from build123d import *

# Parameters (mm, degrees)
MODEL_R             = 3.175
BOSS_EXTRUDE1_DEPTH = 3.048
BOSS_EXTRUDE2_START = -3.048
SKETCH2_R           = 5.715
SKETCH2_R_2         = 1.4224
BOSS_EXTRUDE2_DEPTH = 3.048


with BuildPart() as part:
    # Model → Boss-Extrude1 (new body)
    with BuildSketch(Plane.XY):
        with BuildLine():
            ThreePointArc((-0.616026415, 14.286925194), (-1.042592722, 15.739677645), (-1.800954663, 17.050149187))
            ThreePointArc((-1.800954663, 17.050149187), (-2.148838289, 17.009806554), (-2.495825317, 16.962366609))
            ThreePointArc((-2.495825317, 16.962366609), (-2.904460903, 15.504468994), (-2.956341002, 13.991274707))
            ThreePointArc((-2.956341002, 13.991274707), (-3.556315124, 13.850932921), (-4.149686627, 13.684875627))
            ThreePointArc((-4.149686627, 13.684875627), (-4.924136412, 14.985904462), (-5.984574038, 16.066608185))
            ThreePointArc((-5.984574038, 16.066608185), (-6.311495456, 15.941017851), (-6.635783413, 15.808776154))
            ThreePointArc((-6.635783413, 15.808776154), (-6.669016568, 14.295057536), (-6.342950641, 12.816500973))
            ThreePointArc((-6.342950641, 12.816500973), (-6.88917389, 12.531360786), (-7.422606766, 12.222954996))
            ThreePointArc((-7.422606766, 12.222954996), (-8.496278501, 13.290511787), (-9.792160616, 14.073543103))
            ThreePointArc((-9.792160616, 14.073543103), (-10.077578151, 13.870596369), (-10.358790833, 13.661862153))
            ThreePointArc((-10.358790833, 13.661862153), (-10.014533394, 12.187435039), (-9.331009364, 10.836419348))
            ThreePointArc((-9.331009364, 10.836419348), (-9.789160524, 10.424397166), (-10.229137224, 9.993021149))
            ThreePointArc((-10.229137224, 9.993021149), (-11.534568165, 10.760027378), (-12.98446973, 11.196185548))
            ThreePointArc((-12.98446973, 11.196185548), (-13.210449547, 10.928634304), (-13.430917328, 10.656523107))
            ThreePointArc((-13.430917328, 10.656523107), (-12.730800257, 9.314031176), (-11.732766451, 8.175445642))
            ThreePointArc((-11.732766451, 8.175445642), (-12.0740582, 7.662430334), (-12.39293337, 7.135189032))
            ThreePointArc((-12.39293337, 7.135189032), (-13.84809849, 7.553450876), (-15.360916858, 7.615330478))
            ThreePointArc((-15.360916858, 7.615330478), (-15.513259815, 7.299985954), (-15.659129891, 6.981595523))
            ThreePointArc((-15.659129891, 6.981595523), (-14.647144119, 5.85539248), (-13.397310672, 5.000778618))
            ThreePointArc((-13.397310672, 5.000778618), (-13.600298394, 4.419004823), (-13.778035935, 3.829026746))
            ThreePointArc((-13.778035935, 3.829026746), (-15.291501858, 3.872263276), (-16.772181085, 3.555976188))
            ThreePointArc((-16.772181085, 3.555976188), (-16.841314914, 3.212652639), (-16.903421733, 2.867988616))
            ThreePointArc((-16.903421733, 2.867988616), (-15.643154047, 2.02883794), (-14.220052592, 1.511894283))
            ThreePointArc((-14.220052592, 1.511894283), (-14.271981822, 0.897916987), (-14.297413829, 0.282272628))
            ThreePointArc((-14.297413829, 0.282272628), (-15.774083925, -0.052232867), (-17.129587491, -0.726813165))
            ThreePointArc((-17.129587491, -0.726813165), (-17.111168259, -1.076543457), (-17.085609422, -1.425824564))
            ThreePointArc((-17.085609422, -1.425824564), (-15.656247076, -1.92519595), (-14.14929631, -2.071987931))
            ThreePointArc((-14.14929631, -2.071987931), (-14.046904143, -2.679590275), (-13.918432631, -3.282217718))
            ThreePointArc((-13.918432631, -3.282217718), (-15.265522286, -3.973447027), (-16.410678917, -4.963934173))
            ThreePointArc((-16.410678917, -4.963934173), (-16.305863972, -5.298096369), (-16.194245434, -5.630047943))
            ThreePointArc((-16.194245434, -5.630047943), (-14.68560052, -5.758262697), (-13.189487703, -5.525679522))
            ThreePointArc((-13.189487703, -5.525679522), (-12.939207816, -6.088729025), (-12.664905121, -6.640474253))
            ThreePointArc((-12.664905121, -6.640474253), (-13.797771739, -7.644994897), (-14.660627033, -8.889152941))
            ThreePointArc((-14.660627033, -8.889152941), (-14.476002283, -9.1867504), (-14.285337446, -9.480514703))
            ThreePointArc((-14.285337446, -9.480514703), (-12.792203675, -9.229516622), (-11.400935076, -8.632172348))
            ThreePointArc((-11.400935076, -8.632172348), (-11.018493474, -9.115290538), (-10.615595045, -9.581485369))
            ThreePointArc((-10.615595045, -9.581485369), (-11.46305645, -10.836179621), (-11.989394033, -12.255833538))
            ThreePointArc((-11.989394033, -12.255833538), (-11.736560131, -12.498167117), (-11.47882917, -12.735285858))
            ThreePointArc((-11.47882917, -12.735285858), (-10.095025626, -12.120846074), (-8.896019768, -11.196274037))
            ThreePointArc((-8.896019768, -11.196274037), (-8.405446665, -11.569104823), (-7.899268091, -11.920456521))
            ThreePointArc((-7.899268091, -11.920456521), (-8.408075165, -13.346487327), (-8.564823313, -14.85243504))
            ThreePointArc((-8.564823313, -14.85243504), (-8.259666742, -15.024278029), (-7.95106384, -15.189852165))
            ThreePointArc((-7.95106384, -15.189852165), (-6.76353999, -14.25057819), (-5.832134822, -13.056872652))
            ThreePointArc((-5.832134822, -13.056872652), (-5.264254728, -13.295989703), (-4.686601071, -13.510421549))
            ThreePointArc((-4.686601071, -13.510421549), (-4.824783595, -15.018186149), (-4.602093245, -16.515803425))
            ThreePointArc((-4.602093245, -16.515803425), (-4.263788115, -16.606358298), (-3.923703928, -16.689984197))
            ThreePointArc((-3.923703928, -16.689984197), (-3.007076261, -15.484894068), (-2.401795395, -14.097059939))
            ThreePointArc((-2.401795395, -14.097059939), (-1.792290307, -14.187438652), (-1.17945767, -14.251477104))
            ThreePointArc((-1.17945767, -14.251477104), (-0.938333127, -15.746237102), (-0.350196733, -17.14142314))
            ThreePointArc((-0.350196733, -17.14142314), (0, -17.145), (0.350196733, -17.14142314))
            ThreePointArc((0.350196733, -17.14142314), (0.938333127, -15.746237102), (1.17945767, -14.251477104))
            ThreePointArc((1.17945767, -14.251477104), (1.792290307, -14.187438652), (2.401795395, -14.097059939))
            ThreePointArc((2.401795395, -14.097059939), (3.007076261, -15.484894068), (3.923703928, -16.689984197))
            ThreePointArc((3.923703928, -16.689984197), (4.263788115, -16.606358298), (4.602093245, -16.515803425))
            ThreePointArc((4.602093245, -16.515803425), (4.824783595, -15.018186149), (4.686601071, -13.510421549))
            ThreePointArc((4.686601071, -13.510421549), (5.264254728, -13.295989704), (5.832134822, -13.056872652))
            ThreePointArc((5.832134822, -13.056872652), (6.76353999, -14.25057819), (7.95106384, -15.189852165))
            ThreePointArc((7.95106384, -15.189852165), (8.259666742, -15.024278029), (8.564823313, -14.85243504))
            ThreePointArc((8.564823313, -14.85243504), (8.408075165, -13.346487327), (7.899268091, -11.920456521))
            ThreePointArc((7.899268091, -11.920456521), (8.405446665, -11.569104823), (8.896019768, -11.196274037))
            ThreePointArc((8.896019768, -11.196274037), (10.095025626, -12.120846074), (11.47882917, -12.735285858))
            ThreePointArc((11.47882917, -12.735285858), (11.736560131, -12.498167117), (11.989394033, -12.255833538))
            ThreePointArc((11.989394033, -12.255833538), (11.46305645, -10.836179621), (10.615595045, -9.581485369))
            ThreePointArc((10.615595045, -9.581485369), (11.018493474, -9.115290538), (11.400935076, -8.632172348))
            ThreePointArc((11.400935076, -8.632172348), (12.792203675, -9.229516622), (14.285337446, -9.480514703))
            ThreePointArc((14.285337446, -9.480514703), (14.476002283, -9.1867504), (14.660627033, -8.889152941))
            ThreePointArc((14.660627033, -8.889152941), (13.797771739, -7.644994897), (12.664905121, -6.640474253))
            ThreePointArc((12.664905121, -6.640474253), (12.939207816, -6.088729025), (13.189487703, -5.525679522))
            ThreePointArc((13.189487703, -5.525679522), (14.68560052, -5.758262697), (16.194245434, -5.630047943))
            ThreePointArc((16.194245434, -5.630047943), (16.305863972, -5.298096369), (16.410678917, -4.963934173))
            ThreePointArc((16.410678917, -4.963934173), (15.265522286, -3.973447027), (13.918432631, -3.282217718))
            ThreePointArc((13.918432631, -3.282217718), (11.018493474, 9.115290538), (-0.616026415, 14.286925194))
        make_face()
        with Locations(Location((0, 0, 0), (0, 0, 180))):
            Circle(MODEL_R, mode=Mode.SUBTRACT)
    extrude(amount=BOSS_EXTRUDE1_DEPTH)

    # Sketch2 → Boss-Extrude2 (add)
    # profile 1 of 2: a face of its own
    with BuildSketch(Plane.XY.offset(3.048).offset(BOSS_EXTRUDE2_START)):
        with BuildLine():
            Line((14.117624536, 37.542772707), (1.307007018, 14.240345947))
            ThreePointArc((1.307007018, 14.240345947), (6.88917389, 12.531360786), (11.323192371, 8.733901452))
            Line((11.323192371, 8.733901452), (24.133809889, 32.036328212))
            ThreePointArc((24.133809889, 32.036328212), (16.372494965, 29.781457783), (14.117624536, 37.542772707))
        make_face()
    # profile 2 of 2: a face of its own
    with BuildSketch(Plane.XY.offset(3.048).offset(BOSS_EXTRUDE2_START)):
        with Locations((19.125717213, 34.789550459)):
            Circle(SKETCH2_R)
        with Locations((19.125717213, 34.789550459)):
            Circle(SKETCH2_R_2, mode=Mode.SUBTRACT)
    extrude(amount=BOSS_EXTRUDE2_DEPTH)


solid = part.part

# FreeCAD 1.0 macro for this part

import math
import FreeCAD as App
import Part
import Sketcher
from FreeCAD import Vector
Q = App.Units.Quantity

doc = App.newDocument("Part")
body = doc.addObject("PartDesign::Body", "Body")

# Sketch on XY plane
sketch1 = body.newObject("Sketcher::SketchObject", "Sketch")
sketch1.AttachmentSupport = (doc.getObject("XY_Plane"), [""])
sketch1.MapMode = "FlatFace"
sketch1.addGeometry([
    Part.ArcOfCircle(Part.Circle(Vector(-6.878636, 13.23706, 0), Vector(0, 0, 1), 6.35), math.radians(9.516585), math.radians(36.904747)),  # 0
    Part.ArcOfCircle(Part.Circle(Vector(0, 0, 0), Vector(0, 0, 1), 17.145), math.radians(96.029619), math.radians(98.370382)),  # 1
    Part.ArcOfCircle(Part.Circle(Vector(3.370608, 14.531841, 0), Vector(0, 0, 1), 6.35), math.radians(157.495253), math.radians(184.883415)),  # 2
    Part.ArcOfCircle(Part.Circle(Vector(0, 0, 0), Vector(0, 0, 1), 14.3002), math.radians(101.931039), math.radians(106.868961)),  # 3
    Part.ArcOfCircle(Part.Circle(Vector(-9.954454, 11.110546, 0), Vector(0, 0, 1), 6.35), math.radians(23.916585), math.radians(51.304747)),  # 4
    Part.ArcOfCircle(Part.Circle(Vector(-0.000001, 0.000004, 0), Vector(0, 0, 1), 17.144996), math.radians(110.429618), math.radians(112.770382)),  # 5
    Part.ArcOfCircle(Part.Circle(Vector(-0.349207, 14.913532, 0), Vector(0, 0, 1), 6.35), math.radians(171.895253), math.radians(199.283415)),  # 6
    Part.ArcOfCircle(Part.Circle(Vector(0, 0, 0), Vector(0, 0, 1), 14.3002), math.radians(116.331039), math.radians(121.268961)),  # 7
    Part.ArcOfCircle(Part.Circle(Vector(-12.404797, 8.285916, 0), Vector(0, 0, 1), 6.35), math.radians(38.316585), math.radians(65.704747)),  # 8
    Part.ArcOfCircle(Part.Circle(Vector(-0.000001, 0.000002, 0), Vector(0, 0, 1), 17.144998), math.radians(124.829618), math.radians(127.170382)),  # 9
    Part.ArcOfCircle(Part.Circle(Vector(-4.047081, 14.358152, 0), Vector(0, 0, 1), 6.35), math.radians(-173.704747), math.radians(-146.316585)),  # 10
    Part.ArcOfCircle(Part.Circle(Vector(0, 0, 0), Vector(0, 0, 1), 14.3002), math.radians(130.731039), math.radians(135.668961)),  # 11
    Part.ArcOfCircle(Part.Circle(Vector(-14.075701, 4.940651, 0), Vector(0, 0, 1), 6.35), math.radians(52.716585), math.radians(80.104747)),  # 12
    Part.ArcOfCircle(Part.Circle(Vector(0.000001, -0.000001, 0), Vector(0, 0, 1), 17.145002), math.radians(139.229619), math.radians(141.570381)),  # 13
    Part.ArcOfCircle(Part.Circle(Vector(-7.490662, 12.900596, 0), Vector(0, 0, 1), 6.35), math.radians(-159.304747), math.radians(-131.916585)),  # 14
    Part.ArcOfCircle(Part.Circle(Vector(0, 0, 0), Vector(0, 0, 1), 14.3002), math.radians(145.131039), math.radians(150.068961)),  # 15
    Part.ArcOfCircle(Part.Circle(Vector(-14.862177, 1.284947, 0), Vector(0, 0, 1), 6.35), math.radians(67.116585), math.radians(94.504747)),  # 16
    Part.ArcOfCircle(Part.Circle(Vector(-0.000002, 0.000001, 0), Vector(0, 0, 1), 17.144998), math.radians(153.629618), math.radians(155.970382)),  # 17
    Part.ArcOfCircle(Part.Circle(Vector(-10.463577, 10.632448, 0), Vector(0, 0, 1), 6.35), math.radians(-144.904747), math.radians(-117.516585)),  # 18
    Part.ArcOfCircle(Part.Circle(Vector(0, 0, 0), Vector(0, 0, 1), 14.3002), math.radians(159.531039), math.radians(164.468961)),  # 19
    Part.ArcOfCircle(Part.Circle(Vector(-14.714808, -2.451495, 0), Vector(0, 0, 1), 6.35), math.radians(81.516585), math.radians(108.904747)),  # 20
    Part.ArcOfCircle(Part.Circle(Vector(-0.000003, 0.000001, 0), Vector(0, 0, 1), 17.144997), math.radians(168.029618), math.radians(170.370382)),  # 21
    Part.ArcOfCircle(Part.Circle(Vector(-12.779027, 7.696225, 0), Vector(0, 0, 1), 6.35), math.radians(-130.504747), math.radians(-103.116585)),  # 22
    Part.ArcOfCircle(Part.Circle(Vector(0, 0, 0), Vector(0, 0, 1), 14.3002), math.radians(173.931039), math.radians(178.868961)),  # 23
    Part.ArcOfCircle(Part.Circle(Vector(-13.642853, -6.033901, 0), Vector(0, 0, 1), 6.35), math.radians(95.916585), math.radians(123.304747)),  # 24
    Part.ArcOfCircle(Part.Circle(Vector(-0.000001, 0, 0), Vector(0, 0, 1), 17.144999), math.radians(-177.570382), math.radians(-175.229619)),  # 25
    Part.ArcOfCircle(Part.Circle(Vector(-14.291523, 4.276419, 0), Vector(0, 0, 1), 6.35), math.radians(-116.104747), math.radians(-88.716585)),  # 26
    Part.ArcOfCircle(Part.Circle(Vector(0, 0, 0), Vector(0, 0, 1), 14.3002), math.radians(-171.668961), math.radians(-166.731039)),  # 27
    Part.ArcOfCircle(Part.Circle(Vector(-11.713667, -9.237175, 0), Vector(0, 0, 1), 6.35), math.radians(110.316585), math.radians(137.704747)),  # 28
    Part.ArcOfCircle(Part.Circle(Vector(-0.000001, 0, 0), Vector(0, 0, 1), 17.144999), math.radians(-163.170382), math.radians(-160.829619)),  # 29
    Part.ArcOfCircle(Part.Circle(Vector(-14.906031, 0.58791, 0), Vector(0, 0, 1), 6.35), math.radians(-101.704747), math.radians(-74.316585)),  # 30
    Part.ArcOfCircle(Part.Circle(Vector(0, 0, 0), Vector(0, 0, 1), 14.3002), math.radians(-157.268961), math.radians(-152.331039)),  # 31
    Part.ArcOfCircle(Part.Circle(Vector(-9.048469, -11.860042, 0), Vector(0, 0, 1), 6.35), math.radians(124.716585), math.radians(152.104747)),  # 32
    Part.ArcOfCircle(Part.Circle(Vector(-0.000002, -0.000001, 0), Vector(0, 0, 1), 17.144998), math.radians(-148.770382), math.radians(-146.429618)),  # 33
    Part.ArcOfCircle(Part.Circle(Vector(-14.583938, -3.137539, 0), Vector(0, 0, 1), 6.35), math.radians(-87.304747), math.radians(-59.916585)),  # 34
    Part.ArcOfCircle(Part.Circle(Vector(0, 0, 0), Vector(0, 0, 1), 14.300201), math.radians(-142.868961), math.radians(-137.931039)),  # 35
    Part.ArcOfCircle(Part.Circle(Vector(-5.814722, -13.7377, 0), Vector(0, 0, 1), 6.35), math.radians(139.116585), math.radians(166.504747)),  # 36
    Part.ArcOfCircle(Part.Circle(Vector(0, 0, 0), Vector(0, 0, 1), 17.145), math.radians(-134.370381), math.radians(-132.029619)),  # 37
    Part.ArcOfCircle(Part.Circle(Vector(-13.345482, -6.665846, 0), Vector(0, 0, 1), 6.35), math.radians(-72.904747), math.radians(-45.516585)),  # 38
    Part.ArcOfCircle(Part.Circle(Vector(0, 0, 0), Vector(0, 0, 1), 14.3002), math.radians(-128.468961), math.radians(-123.531039)),  # 39
    Part.ArcOfCircle(Part.Circle(Vector(-2.215615, -14.752168, 0), Vector(0, 0, 1), 6.35), math.radians(153.516585), math.radians(180.904747)),  # 40
    Part.ArcOfCircle(Part.Circle(Vector(0.000001, 0.000001, 0), Vector(0, 0, 1), 17.145001), math.radians(-119.970381), math.radians(-117.629619)),  # 41
    Part.ArcOfCircle(Part.Circle(Vector(-11.268481, -9.775312, 0), Vector(0, 0, 1), 6.35), math.radians(-58.504747), math.radians(-31.116585)),  # 42
    Part.ArcOfCircle(Part.Circle(Vector(0, 0, 0), Vector(0, 0, 1), 14.3002), math.radians(-114.068961), math.radians(-109.131039)),  # 43
    Part.ArcOfCircle(Part.Circle(Vector(1.522708, -14.839702, 0), Vector(0, 0, 1), 6.35), math.radians(167.916585), math.radians(195.304747)),  # 44
    Part.ArcOfCircle(Part.Circle(Vector(0, 0, 0), Vector(0, 0, 1), 17.145), math.radians(-105.570381), math.radians(-103.229619)),  # 45
    Part.ArcOfCircle(Part.Circle(Vector(-8.48344, -12.27056, 0), Vector(0, 0, 1), 6.35), math.radians(-44.104747), math.radians(-16.716585)),  # 46
    Part.ArcOfCircle(Part.Circle(Vector(0, 0, 0), Vector(0, 0, 1), 14.3002), math.radians(-99.668961), math.radians(-94.731039)),  # 47
    Part.ArcOfCircle(Part.Circle(Vector(5.165353, -13.994804, 0), Vector(0, 0, 1), 6.35), math.radians(-177.683415), math.radians(-150.295253)),  # 48
    Part.ArcOfCircle(Part.Circle(Vector(0, 0.000002, 0), Vector(0, 0, 1), 17.145002), math.radians(-91.170381), math.radians(-88.829619)),  # 49
    Part.ArcOfCircle(Part.Circle(Vector(-5.165353, -13.994804, 0), Vector(0, 0, 1), 6.35), math.radians(-29.704747), math.radians(-2.316585)),  # 50
    Part.ArcOfCircle(Part.Circle(Vector(0, 0, 0), Vector(0, 0, 1), 14.3002), math.radians(-85.268961), math.radians(-80.331039)),  # 51
    Part.ArcOfCircle(Part.Circle(Vector(8.48344, -12.27056, 0), Vector(0, 0, 1), 6.35), math.radians(-163.283415), math.radians(-135.895253)),  # 52
    Part.ArcOfCircle(Part.Circle(Vector(0, 0, 0), Vector(0, 0, 1), 17.145), math.radians(-76.770381), math.radians(-74.429619)),  # 53
    Part.ArcOfCircle(Part.Circle(Vector(-1.522708, -14.839702, 0), Vector(0, 0, 1), 6.35), math.radians(-15.304747), math.radians(12.083415)),  # 54
    Part.ArcOfCircle(Part.Circle(Vector(0, -0.000001, 0), Vector(0, 0, 1), 14.300199), math.radians(-70.868961), math.radians(-65.931039)),  # 55
    Part.ArcOfCircle(Part.Circle(Vector(11.268481, -9.775312, 0), Vector(0, 0, 1), 6.35), math.radians(-148.883415), math.radians(-121.495253)),  # 56
    Part.ArcOfCircle(Part.Circle(Vector(-0.000001, 0.000001, 0), Vector(0, 0, 1), 17.145001), math.radians(-62.370381), math.radians(-60.029619)),  # 57
    Part.ArcOfCircle(Part.Circle(Vector(2.215615, -14.752168, 0), Vector(0, 0, 1), 6.35), math.radians(-0.904747), math.radians(26.483415)),  # 58
    Part.ArcOfCircle(Part.Circle(Vector(0, 0, 0), Vector(0, 0, 1), 14.3002), math.radians(-56.468961), math.radians(-51.531039)),  # 59
    Part.ArcOfCircle(Part.Circle(Vector(13.345482, -6.665846, 0), Vector(0, 0, 1), 6.35), math.radians(-134.483415), math.radians(-107.095253)),  # 60
    Part.ArcOfCircle(Part.Circle(Vector(0, 0, 0), Vector(0, 0, 1), 17.145), math.radians(-47.970381), math.radians(-45.629619)),  # 61
    Part.ArcOfCircle(Part.Circle(Vector(5.814722, -13.7377, 0), Vector(0, 0, 1), 6.35), math.radians(13.495253), math.radians(40.883415)),  # 62
    Part.ArcOfCircle(Part.Circle(Vector(0, 0, 0), Vector(0, 0, 1), 14.300201), math.radians(-42.068961), math.radians(-37.131039)),  # 63
    Part.ArcOfCircle(Part.Circle(Vector(14.583938, -3.137539, 0), Vector(0, 0, 1), 6.35), math.radians(-120.083415), math.radians(-92.695253)),  # 64
    Part.ArcOfCircle(Part.Circle(Vector(0.000002, -0.000001, 0), Vector(0, 0, 1), 17.144998), math.radians(-33.570382), math.radians(-31.229618)),  # 65
    Part.ArcOfCircle(Part.Circle(Vector(9.048469, -11.860042, 0), Vector(0, 0, 1), 6.35), math.radians(27.895253), math.radians(55.283415)),  # 66
    Part.ArcOfCircle(Part.Circle(Vector(0, 0, 0), Vector(0, 0, 1), 14.3002), math.radians(-27.668961), math.radians(-22.731039)),  # 67
    Part.ArcOfCircle(Part.Circle(Vector(14.906031, 0.58791, 0), Vector(0, 0, 1), 6.35), math.radians(-105.683415), math.radians(-78.295253)),  # 68
    Part.ArcOfCircle(Part.Circle(Vector(0.000001, 0, 0), Vector(0, 0, 1), 17.144999), math.radians(-19.170381), math.radians(-16.829618)),  # 69
    Part.ArcOfCircle(Part.Circle(Vector(11.713667, -9.237175, 0), Vector(0, 0, 1), 6.35), math.radians(42.295253), math.radians(69.683415)),  # 70
    Part.ArcOfCircle(Part.Circle(Vector(0, 0, 0), Vector(0, 0, 1), 14.3002), math.radians(-13.268961), math.radians(92.468961)),  # 71
    Part.Circle(Vector(0, 0, 0), Vector(0, 0, 1), 3.175),  # 72
], False)
sketch1.addConstraint([
    Sketcher.Constraint("Coincident", 0, 2, 1, 1),
    Sketcher.Constraint("Coincident", 1, 2, 2, 1),
    Sketcher.Constraint("Coincident", 2, 2, 3, 1),
    Sketcher.Constraint("Coincident", 3, 2, 4, 1),
    Sketcher.Constraint("Coincident", 4, 2, 5, 1),
    Sketcher.Constraint("Coincident", 5, 2, 6, 1),
    Sketcher.Constraint("Coincident", 6, 2, 7, 1),
    Sketcher.Constraint("Coincident", 7, 2, 8, 1),
    Sketcher.Constraint("Coincident", 8, 2, 9, 1),
    Sketcher.Constraint("Coincident", 9, 2, 10, 1),
    Sketcher.Constraint("Coincident", 10, 2, 11, 1),
    Sketcher.Constraint("Coincident", 11, 2, 12, 1),
    Sketcher.Constraint("Coincident", 12, 2, 13, 1),
    Sketcher.Constraint("Coincident", 13, 2, 14, 1),
    Sketcher.Constraint("Coincident", 14, 2, 15, 1),
    Sketcher.Constraint("Coincident", 15, 2, 16, 1),
    Sketcher.Constraint("Coincident", 16, 2, 17, 1),
    Sketcher.Constraint("Coincident", 17, 2, 18, 1),
    Sketcher.Constraint("Coincident", 18, 2, 19, 1),
    Sketcher.Constraint("Coincident", 19, 2, 20, 1),
    Sketcher.Constraint("Coincident", 20, 2, 21, 1),
    Sketcher.Constraint("Coincident", 21, 2, 22, 1),
    Sketcher.Constraint("Coincident", 22, 2, 23, 1),
    Sketcher.Constraint("Coincident", 23, 2, 24, 1),
    Sketcher.Constraint("Coincident", 24, 2, 25, 1),
    Sketcher.Constraint("Coincident", 25, 2, 26, 1),
    Sketcher.Constraint("Coincident", 26, 2, 27, 1),
    Sketcher.Constraint("Coincident", 27, 2, 28, 1),
    Sketcher.Constraint("Coincident", 28, 2, 29, 1),
    Sketcher.Constraint("Coincident", 29, 2, 30, 1),
    Sketcher.Constraint("Coincident", 30, 2, 31, 1),
    Sketcher.Constraint("Coincident", 31, 2, 32, 1),
    Sketcher.Constraint("Coincident", 32, 2, 33, 1),
    Sketcher.Constraint("Coincident", 33, 2, 34, 1),
    Sketcher.Constraint("Coincident", 34, 2, 35, 1),
    Sketcher.Constraint("Coincident", 35, 2, 36, 1),
    Sketcher.Constraint("Coincident", 36, 2, 37, 1),
    Sketcher.Constraint("Coincident", 37, 2, 38, 1),
    Sketcher.Constraint("Coincident", 38, 2, 39, 1),
    Sketcher.Constraint("Coincident", 39, 2, 40, 1),
    Sketcher.Constraint("Coincident", 40, 2, 41, 1),
    Sketcher.Constraint("Coincident", 41, 2, 42, 1),
    Sketcher.Constraint("Coincident", 42, 2, 43, 1),
    Sketcher.Constraint("Coincident", 43, 2, 44, 1),
    Sketcher.Constraint("Coincident", 44, 2, 45, 1),
    Sketcher.Constraint("Coincident", 45, 2, 46, 1),
    Sketcher.Constraint("Coincident", 46, 2, 47, 1),
    Sketcher.Constraint("Coincident", 47, 2, 48, 1),
    Sketcher.Constraint("Coincident", 48, 2, 49, 1),
    Sketcher.Constraint("Coincident", 49, 2, 50, 1),
    Sketcher.Constraint("Coincident", 50, 2, 51, 1),
    Sketcher.Constraint("Coincident", 51, 2, 52, 1),
    Sketcher.Constraint("Coincident", 52, 2, 53, 1),
    Sketcher.Constraint("Coincident", 53, 2, 54, 1),
    Sketcher.Constraint("Coincident", 54, 2, 55, 1),
    Sketcher.Constraint("Coincident", 55, 2, 56, 1),
    Sketcher.Constraint("Coincident", 56, 2, 57, 1),
    Sketcher.Constraint("Coincident", 57, 2, 58, 1),
    Sketcher.Constraint("Coincident", 58, 2, 59, 1),
    Sketcher.Constraint("Coincident", 59, 2, 60, 1),
    Sketcher.Constraint("Coincident", 60, 2, 61, 1),
    Sketcher.Constraint("Coincident", 61, 2, 62, 1),
    Sketcher.Constraint("Coincident", 62, 2, 63, 1),
    Sketcher.Constraint("Coincident", 63, 2, 64, 1),
    Sketcher.Constraint("Coincident", 64, 2, 65, 1),
    Sketcher.Constraint("Coincident", 65, 2, 66, 1),
    Sketcher.Constraint("Coincident", 66, 2, 67, 1),
    Sketcher.Constraint("Coincident", 67, 2, 68, 1),
    Sketcher.Constraint("Coincident", 68, 2, 69, 1),
    Sketcher.Constraint("Coincident", 69, 2, 70, 1),
    Sketcher.Constraint("Coincident", 70, 2, 71, 1),
    Sketcher.Constraint("Coincident", 71, 2, 0, 1),
    Sketcher.Constraint("Coincident", 1, 3, -1, 1),
    Sketcher.Constraint("Coincident", 3, 3, -1, 1),
    Sketcher.Constraint("Coincident", 5, 3, -1, 1),
    Sketcher.Constraint("Coincident", 7, 3, -1, 1),
    Sketcher.Constraint("Coincident", 9, 3, -1, 1),
    Sketcher.Constraint("Coincident", 11, 3, -1, 1),
    Sketcher.Constraint("Coincident", 13, 3, -1, 1),
    Sketcher.Constraint("Coincident", 15, 3, -1, 1),
    Sketcher.Constraint("Coincident", 17, 3, -1, 1),
    Sketcher.Constraint("Coincident", 19, 3, -1, 1),
    Sketcher.Constraint("Coincident", 21, 3, -1, 1),
    Sketcher.Constraint("Coincident", 23, 3, -1, 1),
    Sketcher.Constraint("Coincident", 25, 3, -1, 1),
    Sketcher.Constraint("Coincident", 27, 3, -1, 1),
    Sketcher.Constraint("Coincident", 29, 3, -1, 1),
    Sketcher.Constraint("Coincident", 31, 3, -1, 1),
    Sketcher.Constraint("Coincident", 33, 3, -1, 1),
    Sketcher.Constraint("Coincident", 35, 3, -1, 1),
    Sketcher.Constraint("Coincident", 37, 3, -1, 1),
    Sketcher.Constraint("Coincident", 39, 3, -1, 1),
    Sketcher.Constraint("Coincident", 41, 3, -1, 1),
    Sketcher.Constraint("Coincident", 43, 3, -1, 1),
    Sketcher.Constraint("Coincident", 45, 3, -1, 1),
    Sketcher.Constraint("Coincident", 47, 3, -1, 1),
    Sketcher.Constraint("Coincident", 49, 3, -1, 1),
    Sketcher.Constraint("Coincident", 51, 3, -1, 1),
    Sketcher.Constraint("Coincident", 53, 3, -1, 1),
    Sketcher.Constraint("Coincident", 55, 3, -1, 1),
    Sketcher.Constraint("Coincident", 57, 3, -1, 1),
    Sketcher.Constraint("Coincident", 59, 3, -1, 1),
    Sketcher.Constraint("Coincident", 61, 3, -1, 1),
    Sketcher.Constraint("Coincident", 63, 3, -1, 1),
    Sketcher.Constraint("Coincident", 65, 3, -1, 1),
    Sketcher.Constraint("Coincident", 67, 3, -1, 1),
    Sketcher.Constraint("Coincident", 69, 3, -1, 1),
    Sketcher.Constraint("Coincident", 71, 3, -1, 1),
    Sketcher.Constraint("Coincident", 72, 3, -1, 1),
    Sketcher.Constraint("Diameter", 72, Q("0.25 in")),
    Sketcher.Constraint("Radius", 0, Q("0.25 in")),
    Sketcher.Constraint("Radius", 2, Q("0.25 in")),
    Sketcher.Constraint("Radius", 4, Q("0.25 in")),
    Sketcher.Constraint("Radius", 6, Q("0.25 in")),
    Sketcher.Constraint("Radius", 8, Q("0.25 in")),
    Sketcher.Constraint("Radius", 10, Q("0.25 in")),
    Sketcher.Constraint("Radius", 12, Q("0.25 in")),
    Sketcher.Constraint("Radius", 14, Q("0.25 in")),
    Sketcher.Constraint("Radius", 16, Q("0.25 in")),
    Sketcher.Constraint("Radius", 18, Q("0.25 in")),
    Sketcher.Constraint("Radius", 20, Q("0.25 in")),
    Sketcher.Constraint("Radius", 22, Q("0.25 in")),
    Sketcher.Constraint("Radius", 24, Q("0.25 in")),
    Sketcher.Constraint("Radius", 26, Q("0.25 in")),
    Sketcher.Constraint("Radius", 28, Q("0.25 in")),
    Sketcher.Constraint("Radius", 30, Q("0.25 in")),
    Sketcher.Constraint("Radius", 32, Q("0.25 in")),
    Sketcher.Constraint("Radius", 34, Q("0.25 in")),
    Sketcher.Constraint("Radius", 36, Q("0.25 in")),
    Sketcher.Constraint("Radius", 38, Q("0.25 in")),
    Sketcher.Constraint("Radius", 40, Q("0.25 in")),
    Sketcher.Constraint("Radius", 42, Q("0.25 in")),
    Sketcher.Constraint("Radius", 44, Q("0.25 in")),
    Sketcher.Constraint("Radius", 46, Q("0.25 in")),
    Sketcher.Constraint("Radius", 48, Q("0.25 in")),
    Sketcher.Constraint("Radius", 50, Q("0.25 in")),
    Sketcher.Constraint("Radius", 52, Q("0.25 in")),
    Sketcher.Constraint("Radius", 54, Q("0.25 in")),
    Sketcher.Constraint("Radius", 56, Q("0.25 in")),
    Sketcher.Constraint("Radius", 58, Q("0.25 in")),
    Sketcher.Constraint("Radius", 60, Q("0.25 in")),
    Sketcher.Constraint("Radius", 62, Q("0.25 in")),
    Sketcher.Constraint("Radius", 64, Q("0.25 in")),
    Sketcher.Constraint("Radius", 66, Q("0.25 in")),
    Sketcher.Constraint("Radius", 68, Q("0.25 in")),
    Sketcher.Constraint("Radius", 70, Q("0.25 in")),
    Sketcher.Constraint("Radius", 1, Q("0.675 in")),
    Sketcher.Constraint("Radius", 3, Q("0.563 in")),
    Sketcher.Constraint("Radius", 5, Q("0.6749998 in")),
    Sketcher.Constraint("Radius", 7, Q("0.563 in")),
    Sketcher.Constraint("Radius", 9, Q("0.6749999 in")),
    Sketcher.Constraint("Radius", 11, Q("0.563 in")),
    Sketcher.Constraint("Radius", 13, Q("0.6750001 in")),
    Sketcher.Constraint("Radius", 15, Q("0.563 in")),
    Sketcher.Constraint("Radius", 17, Q("0.6749999 in")),
    Sketcher.Constraint("Radius", 19, Q("0.563 in")),
    Sketcher.Constraint("Radius", 21, Q("0.6749999 in")),
    Sketcher.Constraint("Radius", 23, Q("0.563 in")),
    Sketcher.Constraint("Radius", 25, Q("0.675 in")),
    Sketcher.Constraint("Radius", 27, Q("0.563 in")),
    Sketcher.Constraint("Radius", 29, Q("0.675 in")),
    Sketcher.Constraint("Radius", 31, Q("0.563 in")),
    Sketcher.Constraint("Radius", 33, Q("0.6749999 in")),
    Sketcher.Constraint("Radius", 35, Q("0.563 in")),
    Sketcher.Constraint("Radius", 37, Q("0.675 in")),
    Sketcher.Constraint("Radius", 39, Q("0.563 in")),
    Sketcher.Constraint("Radius", 41, Q("0.6750001 in")),
    Sketcher.Constraint("Radius", 43, Q("0.563 in")),
    Sketcher.Constraint("Radius", 45, Q("0.675 in")),
    Sketcher.Constraint("Radius", 47, Q("0.563 in")),
    Sketcher.Constraint("Radius", 49, Q("0.6750001 in")),
    Sketcher.Constraint("Radius", 51, Q("0.563 in")),
    Sketcher.Constraint("Radius", 53, Q("0.675 in")),
    Sketcher.Constraint("Radius", 55, Q("0.563 in")),
    Sketcher.Constraint("Radius", 57, Q("0.6750001 in")),
    Sketcher.Constraint("Radius", 59, Q("0.563 in")),
    Sketcher.Constraint("Radius", 61, Q("0.675 in")),
    Sketcher.Constraint("Radius", 63, Q("0.563 in")),
    Sketcher.Constraint("Radius", 65, Q("0.6749999 in")),
    Sketcher.Constraint("Radius", 67, Q("0.563 in")),
    Sketcher.Constraint("Radius", 69, Q("0.675 in")),
    Sketcher.Constraint("Radius", 71, Q("0.563 in")),
    Sketcher.Constraint("DistanceX", 12, 3, -1, 1, 14.075701),
    Sketcher.Constraint("DistanceY", 24, 3, -1, 1, 6.033901),
    Sketcher.Constraint("DistanceY", 36, 3, -1, 1, 13.7377),
    Sketcher.Constraint("DistanceY", 62, 3, -1, 1, 13.7377),
    Sketcher.Constraint("DistanceY", -1, 1, 6, 2, 12.816501),
    Sketcher.Constraint("DistanceX", 43, 2, -1, 1, 4.686601),
    Sketcher.Constraint("DistanceX", -1, 1, 54, 2, 4.686601),
    Sketcher.Constraint("DistanceY", -1, 1, 0, 3, 13.23706),
    Sketcher.Constraint("DistanceX", -1, 1, 2, 3, 3.370608),
    Sketcher.Constraint("DistanceY", -1, 1, 2, 3, 14.531841),
    Sketcher.Constraint("DistanceX", 10, 3, -1, 1, 4.047081),
    Sketcher.Constraint("DistanceY", -1, 1, 12, 3, 4.940651),
    Sketcher.Constraint("DistanceX", 14, 3, -1, 1, 7.490662),
    Sketcher.Constraint("DistanceY", -1, 1, 18, 3, 10.632448),
    Sketcher.Constraint("DistanceY", -1, 1, 26, 3, 4.276419),
    Sketcher.Constraint("DistanceX", 30, 3, -1, 1, 14.906031),
    Sketcher.Constraint("DistanceY", -1, 1, 30, 3, 0.58791),
    Sketcher.Constraint("DistanceX", 32, 3, -1, 1, 9.048469),
    Sketcher.Constraint("DistanceY", 34, 3, -1, 1, 3.137539),
    Sketcher.Constraint("DistanceX", 42, 3, -1, 1, 11.268481),
    Sketcher.Constraint("DistanceX", 46, 3, -1, 1, 8.48344),
    Sketcher.Constraint("DistanceY", 46, 3, -1, 1, 12.27056),
    Sketcher.Constraint("DistanceX", -1, 1, 52, 3, 8.48344),
    Sketcher.Constraint("DistanceY", 52, 3, -1, 1, 12.27056),
    Sketcher.Constraint("DistanceX", -1, 1, 56, 3, 11.268481),
    Sketcher.Constraint("DistanceY", 64, 3, -1, 1, 3.137539),
    Sketcher.Constraint("DistanceX", -1, 1, 66, 3, 9.048469),
    Sketcher.Constraint("DistanceX", -1, 1, 68, 3, 14.906031),
    Sketcher.Constraint("DistanceY", -1, 1, 68, 3, 0.58791),
    Sketcher.Constraint("DistanceY", -1, 1, 0, 2, 17.050149),
    Sketcher.Constraint("DistanceY", -1, 1, 4, 2, 16.066608),
    Sketcher.Constraint("DistanceX", 8, 2, -1, 1, 9.792161),
    Sketcher.Constraint("DistanceX", 9, 2, -1, 1, 10.358791),
    Sketcher.Constraint("DistanceY", -1, 1, 15, 2, 7.135189),
    Sketcher.Constraint("DistanceY", -1, 1, 16, 2, 7.61533),
    Sketcher.Constraint("DistanceX", 17, 2, -1, 1, 15.65913),
    Sketcher.Constraint("DistanceX", 20, 2, -1, 1, 16.772181),
    Sketcher.Constraint("DistanceX", 21, 2, -1, 1, 16.903422),
    Sketcher.Constraint("DistanceX", 25, 2, -1, 1, 17.085609),
    Sketcher.Constraint("DistanceX", 28, 2, -1, 1, 16.410679),
    Sketcher.Constraint("DistanceX", 37, 2, -1, 1, 11.478829),
    Sketcher.Constraint("DistanceX", 38, 2, -1, 1, 8.89602),
    Sketcher.Constraint("DistanceX", 39, 2, -1, 1, 7.899268),
    Sketcher.Constraint("DistanceX", -1, 1, 58, 2, 7.899268),
    Sketcher.Constraint("DistanceX", -1, 1, 59, 2, 8.89602),
    Sketcher.Constraint("DistanceX", -1, 1, 60, 2, 11.478829),
    Sketcher.Constraint("DistanceX", -1, 1, 69, 2, 16.410679),
    Sketcher.Constraint("DistanceX", 4, 3, -1, 1, 9.954454),
    Sketcher.Constraint("DistanceX", 6, 3, -1, 1, 0.349207),
    Sketcher.Constraint("DistanceX", 8, 3, -1, 1, 12.404797),
    Sketcher.Constraint("DistanceY", -1, 1, 14, 3, 12.900596),
    Sketcher.Constraint("DistanceX", 20, 3, -1, 1, 14.714808),
    Sketcher.Constraint("DistanceX", 22, 3, -1, 1, 12.779027),
    Sketcher.Constraint("DistanceX", 24, 3, -1, 1, 13.642853),
    Sketcher.Constraint("DistanceX", 28, 3, -1, 1, 11.713667),
    Sketcher.Constraint("DistanceY", 32, 3, -1, 1, 11.860042),
    Sketcher.Constraint("DistanceX", 34, 3, -1, 1, 14.583938),
    Sketcher.Constraint("DistanceX", 36, 3, -1, 1, 5.814722),
    Sketcher.Constraint("DistanceX", 40, 3, -1, 1, 2.215615),
    Sketcher.Constraint("DistanceY", 42, 3, -1, 1, 9.775312),
    Sketcher.Constraint("DistanceX", -1, 1, 44, 3, 1.522708),
    Sketcher.Constraint("DistanceX", -1, 1, 48, 3, 5.165353),
    Sketcher.Constraint("DistanceY", 48, 3, -1, 1, 13.994804),
    Sketcher.Constraint("DistanceX", 50, 3, -1, 1, 5.165353),
    Sketcher.Constraint("DistanceY", 50, 3, -1, 1, 13.994804),
    Sketcher.Constraint("DistanceX", 54, 3, -1, 1, 1.522708),
    Sketcher.Constraint("DistanceY", 56, 3, -1, 1, 9.775312),
    Sketcher.Constraint("DistanceX", -1, 1, 58, 3, 2.215615),
    Sketcher.Constraint("DistanceX", -1, 1, 62, 3, 5.814722),
    Sketcher.Constraint("DistanceX", -1, 1, 64, 3, 14.583938),
    Sketcher.Constraint("DistanceY", 66, 3, -1, 1, 11.860042),
    Sketcher.Constraint("DistanceX", -1, 1, 70, 3, 11.713667),
])
pad1 = body.newObject("PartDesign::Pad", "Pad")
pad1.Profile = sketch1
pad1.Length = Q("0.12 in")

# Sketch on XY plane
sketch2 = body.newObject("Sketcher::SketchObject", "Sketch001")
sketch2.AttachmentSupport = (doc.getObject("XY_Plane"), [""])
sketch2.MapMode = "FlatFace"
sketch2.addGeometry([
    Part.LineSegment(Vector(14.1, 37.5, 0), Vector(1.3, 14.2, 0)),  # 0
    Part.ArcOfCircle(Part.Circle(Vector(0, 0, 0), Vector(0, 0, 1), 14.3), math.radians(38), math.radians(85)),  # 1
    Part.LineSegment(Vector(11.3, 8.7, 0), Vector(24.1, 32, 0)),  # 2
    Part.ArcOfCircle(Part.Circle(Vector(19.1, 34.8, 0), Vector(0, 0, 1), 5.7), math.radians(-29), math.radians(151)),  # 3
    Part.Circle(Vector(19.1, 34.8, 0), Vector(0, 0, 1), 1.4),  # 4
], False)
sketch2.addConstraint([
    Sketcher.Constraint("Coincident", 0, 2, 1, 2),
    Sketcher.Constraint("Coincident", 1, 1, 2, 1),
    Sketcher.Constraint("Tangent", 2, 2, 3, 1),
    Sketcher.Constraint("Tangent", 3, 2, 0, 1),
    Sketcher.Constraint("Coincident", 1, 3, -1, 1),
    Sketcher.Constraint("Coincident", 4, 3, 3, 3),
    Sketcher.Constraint("Parallel", 0, 2),
    Sketcher.Constraint("Equal", 0, 2),
    Sketcher.Constraint("Diameter", 4, Q("0.112 in")),
    Sketcher.Constraint("Radius", 1, Q("0.563 in")),
    Sketcher.Constraint("Radius", 3, Q("0.225 in")),
    Sketcher.Constraint("Angle", 0, Q("-118.8 deg")),
    Sketcher.Constraint("DistanceY", -1, 1, 3, 3, 34.78955),
])
pad2 = body.newObject("PartDesign::Pad", "Pad001")
pad2.Profile = sketch2
pad2.Length = Q("0.12 in")

doc.recompute()
